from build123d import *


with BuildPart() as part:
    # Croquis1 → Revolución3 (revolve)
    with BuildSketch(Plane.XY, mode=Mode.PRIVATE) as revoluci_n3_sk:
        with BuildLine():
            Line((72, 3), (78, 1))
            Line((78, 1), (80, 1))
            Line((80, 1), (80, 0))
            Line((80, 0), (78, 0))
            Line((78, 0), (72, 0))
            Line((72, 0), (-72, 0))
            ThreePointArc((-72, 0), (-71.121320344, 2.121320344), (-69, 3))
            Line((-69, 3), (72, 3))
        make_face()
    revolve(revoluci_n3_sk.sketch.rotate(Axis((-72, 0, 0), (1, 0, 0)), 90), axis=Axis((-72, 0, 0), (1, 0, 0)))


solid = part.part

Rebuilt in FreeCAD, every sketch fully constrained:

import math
import FreeCAD as App
import Part
import Sketcher

V = App.Vector
Q = App.Units.Quantity

doc = App.newDocument("Part")
body = doc.addObject("PartDesign::Body", "Body")

# Sketch on XY plane
sketch1 = body.newObject("Sketcher::SketchObject", "Sketch")
sketch1.AttachmentSupport = (doc.getObject("XY_Plane"), [""])
sketch1.MapMode = "FlatFace"
sketch1.addGeometry(Part.LineSegment(V(78, 1, 0), V(72, 3, 0)), False)
sketch1.addGeometry(Part.LineSegment(V(72, 3, 0), V(-69, 3, 0)), False)
sketch1.addGeometry(Part.ArcOfCircle(Part.Circle(V(-69, 0, 0), V(0, 0, 1), 3), math.radians(90), math.radians(180)), False)
sketch1.addGeometry(Part.LineSegment(V(-72, 0, 0), V(80, 0, 0)), False)
sketch1.addGeometry(Part.LineSegment(V(80, 0, 0), V(80, 1, 0)), False)
sketch1.addGeometry(Part.LineSegment(V(80, 1, 0), V(78, 1, 0)), False)
sketch1.addConstraint(Sketcher.Constraint("Coincident", 0, 2, 1, 1))
sketch1.addConstraint(Sketcher.Constraint("Tangent", 1, 2, 2, 1))
sketch1.addConstraint(Sketcher.Constraint("Coincident", 2, 2, 3, 1))
sketch1.addConstraint(Sketcher.Constraint("Coincident", 3, 2, 4, 1))
sketch1.addConstraint(Sketcher.Constraint("Coincident", 4, 2, 5, 1))
sketch1.addConstraint(Sketcher.Constraint("Coincident", 5, 2, 0, 1))
sketch1.addConstraint(Sketcher.Constraint("Horizontal", 1))
sketch1.addConstraint(Sketcher.Constraint("Horizontal", 3))
sketch1.addConstraint(Sketcher.Constraint("Vertical", 4))
sketch1.addConstraint(Sketcher.Constraint("Horizontal", 5))
sketch1.addConstraint(Sketcher.Constraint("PointOnObject", 2, 3, -1))
sketch1.addConstraint(Sketcher.Constraint("PointOnObject", 2, 2, -1))
sketch1.addConstraint(Sketcher.Constraint("Radius", 2, Q("3 mm")))
sketch1.addConstraint(Sketcher.Constraint("DistanceX", 1, 2, 1, 1, Q("141 mm")))
sketch1.addConstraint(Sketcher.Constraint("DistanceX", 3, 1, 3, 2, Q("152 mm")))
sketch1.addConstraint(Sketcher.Constraint("DistanceX", 5, 2, 5, 1, Q("2 mm")))
sketch1.addConstraint(Sketcher.Constraint("DistanceY", 4, 1, 4, 2, Q("1 mm")))
sketch1.addConstraint(Sketcher.Constraint("DistanceX", 2, 3, -1, 1, Q("69 mm")))
revolution = body.newObject("PartDesign::Revolution", "Revolution")
revolution.Profile = sketch1
revolution.ReferenceAxis = (sketch1, ["H_Axis"])
revolution.Angle = 360

doc.recompute()
